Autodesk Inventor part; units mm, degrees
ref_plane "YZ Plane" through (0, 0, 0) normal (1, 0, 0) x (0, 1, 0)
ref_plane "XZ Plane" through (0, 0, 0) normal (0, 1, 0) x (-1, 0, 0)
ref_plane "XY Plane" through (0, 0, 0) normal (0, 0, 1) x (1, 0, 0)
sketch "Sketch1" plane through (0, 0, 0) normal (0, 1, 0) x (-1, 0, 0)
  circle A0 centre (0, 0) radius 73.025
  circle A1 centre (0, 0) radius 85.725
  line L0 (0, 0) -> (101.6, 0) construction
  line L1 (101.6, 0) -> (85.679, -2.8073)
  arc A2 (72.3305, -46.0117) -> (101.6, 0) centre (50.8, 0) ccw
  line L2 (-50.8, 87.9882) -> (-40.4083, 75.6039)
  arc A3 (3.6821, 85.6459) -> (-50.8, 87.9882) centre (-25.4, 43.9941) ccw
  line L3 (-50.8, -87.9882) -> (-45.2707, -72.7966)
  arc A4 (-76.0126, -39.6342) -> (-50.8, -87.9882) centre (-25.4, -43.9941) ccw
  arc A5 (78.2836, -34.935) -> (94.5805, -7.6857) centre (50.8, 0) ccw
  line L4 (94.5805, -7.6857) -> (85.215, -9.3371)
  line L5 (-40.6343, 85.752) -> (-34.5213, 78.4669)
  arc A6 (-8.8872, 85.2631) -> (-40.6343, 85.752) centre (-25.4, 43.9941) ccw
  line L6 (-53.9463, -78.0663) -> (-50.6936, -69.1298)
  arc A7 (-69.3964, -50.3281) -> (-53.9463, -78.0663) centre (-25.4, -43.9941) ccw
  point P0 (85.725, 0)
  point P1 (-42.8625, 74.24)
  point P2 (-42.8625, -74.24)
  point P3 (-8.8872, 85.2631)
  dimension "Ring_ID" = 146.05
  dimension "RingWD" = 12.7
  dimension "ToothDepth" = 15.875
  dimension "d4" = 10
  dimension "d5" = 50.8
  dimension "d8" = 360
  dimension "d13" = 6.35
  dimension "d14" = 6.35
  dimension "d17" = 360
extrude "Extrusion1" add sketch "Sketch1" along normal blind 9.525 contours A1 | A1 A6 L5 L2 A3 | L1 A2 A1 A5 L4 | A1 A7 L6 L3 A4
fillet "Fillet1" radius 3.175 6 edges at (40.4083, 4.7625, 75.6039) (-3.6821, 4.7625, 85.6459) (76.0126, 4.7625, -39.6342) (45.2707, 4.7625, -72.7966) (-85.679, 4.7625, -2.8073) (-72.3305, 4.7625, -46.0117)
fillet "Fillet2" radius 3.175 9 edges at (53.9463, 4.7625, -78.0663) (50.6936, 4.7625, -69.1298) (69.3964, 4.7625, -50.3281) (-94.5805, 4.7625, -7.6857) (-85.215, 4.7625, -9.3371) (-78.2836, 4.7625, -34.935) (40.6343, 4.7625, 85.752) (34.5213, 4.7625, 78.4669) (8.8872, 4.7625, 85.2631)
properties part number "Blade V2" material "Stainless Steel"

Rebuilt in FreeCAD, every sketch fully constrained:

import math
import FreeCAD as App
import Part
import Sketcher
Q = App.Units.Quantity


def edges_at(feature, points):
    """Names of the edges that pass closest to the given points."""
    edges = feature.Shape.Edges
    near = lambda p: min(range(len(edges)), key=lambda i: edges[i].distToShape(Part.Vertex(*p))[0])
    return sorted({f"Edge{near(p) + 1}" for p in points})

doc = App.newDocument("Part")
body = doc.addObject("PartDesign::Body", "Body")

sketch1 = doc.addObject("Sketcher::SketchObject", "Sketch")
body.addObject(sketch1)
sketch1.AttachmentSupport = (doc.XZ_Plane, [""])
sketch1.MapMode = "FlatFace"
sketch1.addGeometry([
    Part.ArcOfCircle(Part.Circle(App.Vector(0, 0, 0), App.Vector(0, 0, 1), 86), math.radians(92), math.radians(182)),
    Part.ArcOfCircle(Part.Circle(App.Vector(25, 44, 0), App.Vector(0, 0, 1), 51), math.radians(60), math.radians(125)),
    Part.LineSegment(App.Vector(51, 88, 0), App.Vector(40, 76, 0)),
    Part.ArcOfCircle(Part.Circle(App.Vector(0, 0, 0), App.Vector(0, 0, 1), 86), math.radians(-28), math.radians(62)),
    Part.ArcOfCircle(Part.Circle(App.Vector(25, -44, 0), App.Vector(0, 0, 1), 51), math.radians(-60), math.radians(5)),
    Part.LineSegment(App.Vector(51, -88, 0), App.Vector(45, -73, 0)),
    Part.ArcOfCircle(Part.Circle(App.Vector(0, 0, 0), App.Vector(0, 0, 1), 86), math.radians(-148), math.radians(-58)),
    Part.ArcOfCircle(Part.Circle(App.Vector(-51, 0, 0), App.Vector(0, 0, 1), 51), math.radians(180), math.radians(245)),
    Part.LineSegment(App.Vector(-102, 0, 0), App.Vector(-86, -3, 0)),
    Part.ArcOfCircle(Part.Circle(App.Vector(0, 0, 0), App.Vector(0, 0, 1), 86), math.radians(-173.75), math.radians(-155.95)),
    Part.LineSegment(App.Vector(-85, -9, 0), App.Vector(-95, -8, 0)),
    Part.ArcOfCircle(Part.Circle(App.Vector(-51, 0, 0), App.Vector(0, 0, 1), 44), math.radians(-170), math.radians(-128)),
    Part.ArcOfCircle(Part.Circle(App.Vector(0, 0, 0), App.Vector(0, 0, 1), 86), math.radians(-53.75), math.radians(-35.95)),
    Part.LineSegment(App.Vector(51, -69, 0), App.Vector(54, -78, 0)),
    Part.ArcOfCircle(Part.Circle(App.Vector(25, -44, 0), App.Vector(0, 0, 1), 44), math.radians(-50), math.radians(-8)),
    Part.ArcOfCircle(Part.Circle(App.Vector(0, 0, 0), App.Vector(0, 0, 1), 86), math.radians(66.25), math.radians(84.05)),
    Part.LineSegment(App.Vector(35, 78, 0), App.Vector(41, 86, 0)),
    Part.ArcOfCircle(Part.Circle(App.Vector(25, 44, 0), App.Vector(0, 0, 1), 44), math.radians(70), math.radians(112)),
    Part.Circle(App.Vector(0, 0, 0), App.Vector(0, 0, 1), 73),
], False)
sketch1.addConstraint([
    Sketcher.Constraint("Coincident", 0, 1, 1, 2),
    Sketcher.Constraint("Coincident", 1, 1, 2, 1),
    Sketcher.Constraint("Coincident", 2, 2, 3, 2),
    Sketcher.Constraint("Coincident", 3, 1, 4, 2),
    Sketcher.Constraint("Coincident", 4, 1, 5, 1),
    Sketcher.Constraint("Coincident", 5, 2, 6, 2),
    Sketcher.Constraint("Coincident", 6, 1, 7, 2),
    Sketcher.Constraint("Coincident", 7, 1, 8, 1),
    Sketcher.Constraint("Coincident", 8, 2, 0, 2),
    Sketcher.Constraint("Coincident", 9, 1, 10, 1),
    Sketcher.Constraint("Coincident", 10, 2, 11, 1),
    Sketcher.Constraint("Coincident", 11, 2, 9, 2),
    Sketcher.Constraint("Coincident", 12, 1, 13, 1),
    Sketcher.Constraint("Coincident", 13, 2, 14, 1),
    Sketcher.Constraint("Coincident", 14, 2, 12, 2),
    Sketcher.Constraint("Coincident", 15, 1, 16, 1),
    Sketcher.Constraint("Coincident", 16, 2, 17, 1),
    Sketcher.Constraint("Coincident", 17, 2, 15, 2),
    Sketcher.Constraint("Coincident", 0, 3, -1, 1),
    Sketcher.Constraint("Coincident", 3, 3, -1, 1),
    Sketcher.Constraint("Coincident", 6, 3, -1, 1),
    Sketcher.Constraint("Coincident", 9, 3, -1, 1),
    Sketcher.Constraint("Coincident", 12, 3, -1, 1),
    Sketcher.Constraint("Coincident", 15, 3, -1, 1),
    Sketcher.Constraint("Coincident", 18, 3, -1, 1),
    Sketcher.Constraint("Coincident", 11, 3, 7, 3),
    Sketcher.Constraint("Coincident", 14, 3, 4, 3),
    Sketcher.Constraint("Coincident", 17, 3, 1, 3),
    Sketcher.Constraint("Equal", 0, 3),
    Sketcher.Constraint("Equal", 1, 4),
    Sketcher.Constraint("Equal", 3, 6),
    Sketcher.Constraint("Equal", 4, 7),
    Sketcher.Constraint("Equal", 6, 9),
    Sketcher.Constraint("Equal", 9, 12),
    Sketcher.Constraint("Equal", 11, 14),
    Sketcher.Constraint("Equal", 12, 15),
    Sketcher.Constraint("Equal", 14, 17),
    Sketcher.Constraint("Symmetric", 1, 3, 4, 3, -1),
    Sketcher.Constraint("PointOnObject", 7, 3, -1),
    Sketcher.Constraint("PointOnObject", 7, 1, -1),
    Sketcher.Constraint("Parallel", 8, 10),
    Sketcher.Constraint("Parallel", 5, 13),
    Sketcher.Constraint("Parallel", 2, 16),
    Sketcher.Constraint("Vertical", 1, 1, 4, 1),
    Sketcher.Constraint("Equal", 2, 5),
    Sketcher.Constraint("Equal", 5, 8),
    Sketcher.Constraint("Equal", 10, 13),
    Sketcher.Constraint("Equal", 13, 16),
    Sketcher.Constraint("Radius", 1, Q("2 in")),
    Sketcher.Constraint("Diameter", 18, Q("5.75 in")),
    Sketcher.Constraint("DistanceX", 7, 3, -1, 1, Q("2 in")),
    Sketcher.Constraint("DistanceX", -1, 1, 1, 1, Q("2 in")),
    Sketcher.Constraint("Angle", 8, Q("-10 deg")),
    Sketcher.Constraint("Radius", 11, Q("1.75 in")),
    Sketcher.Constraint("DistanceX", -1, 1, 1, 3, Q("1 in")),
    Sketcher.Constraint("Angle", 2, Q("-130 deg")),
    Sketcher.Constraint("Radius", 0, Q("3.375 in")),
    Sketcher.Constraint("DistanceY", 4, 1, 13, 2, Q("0.3906299 in")),
])
pad1 = doc.addObject("PartDesign::Pad", "Pad")
body.addObject(pad1)
pad1.Profile = sketch1
pad1.Length = Q("0.375 in")
pad1.Reversed = True
doc.recompute()

fillet = doc.addObject("PartDesign::Fillet", "Fillet")
body.addObject(fillet)
fillet.Base = (pad1, edges_at(pad1, [
    (40.408, 4.763, 75.604),
    (-3.682, 4.763, 85.646),
    (76.013, 4.763, -39.634),
    (45.271, 4.763, -72.797),
    (-85.679, 4.763, -2.807),
    (-72.331, 4.763, -46.012),
]))
fillet.Radius = Q("0.125 in")
doc.recompute()

fillet2 = doc.addObject("PartDesign::Fillet", "Fillet001")
body.addObject(fillet2)
fillet2.Base = (fillet, edges_at(fillet, [
    (53.946, 4.763, -78.066),
    (50.694, 4.763, -69.13),
    (69.396, 4.763, -50.328),
    (-94.581, 4.763, -7.686),
    (-85.215, 4.763, -9.337),
    (-78.284, 4.763, -34.935),
    (40.634, 4.763, 85.752),
    (34.521, 4.763, 78.467),
    (8.887, 4.763, 85.263),
]))
fillet2.Radius = Q("0.125 in")

doc.recompute()
